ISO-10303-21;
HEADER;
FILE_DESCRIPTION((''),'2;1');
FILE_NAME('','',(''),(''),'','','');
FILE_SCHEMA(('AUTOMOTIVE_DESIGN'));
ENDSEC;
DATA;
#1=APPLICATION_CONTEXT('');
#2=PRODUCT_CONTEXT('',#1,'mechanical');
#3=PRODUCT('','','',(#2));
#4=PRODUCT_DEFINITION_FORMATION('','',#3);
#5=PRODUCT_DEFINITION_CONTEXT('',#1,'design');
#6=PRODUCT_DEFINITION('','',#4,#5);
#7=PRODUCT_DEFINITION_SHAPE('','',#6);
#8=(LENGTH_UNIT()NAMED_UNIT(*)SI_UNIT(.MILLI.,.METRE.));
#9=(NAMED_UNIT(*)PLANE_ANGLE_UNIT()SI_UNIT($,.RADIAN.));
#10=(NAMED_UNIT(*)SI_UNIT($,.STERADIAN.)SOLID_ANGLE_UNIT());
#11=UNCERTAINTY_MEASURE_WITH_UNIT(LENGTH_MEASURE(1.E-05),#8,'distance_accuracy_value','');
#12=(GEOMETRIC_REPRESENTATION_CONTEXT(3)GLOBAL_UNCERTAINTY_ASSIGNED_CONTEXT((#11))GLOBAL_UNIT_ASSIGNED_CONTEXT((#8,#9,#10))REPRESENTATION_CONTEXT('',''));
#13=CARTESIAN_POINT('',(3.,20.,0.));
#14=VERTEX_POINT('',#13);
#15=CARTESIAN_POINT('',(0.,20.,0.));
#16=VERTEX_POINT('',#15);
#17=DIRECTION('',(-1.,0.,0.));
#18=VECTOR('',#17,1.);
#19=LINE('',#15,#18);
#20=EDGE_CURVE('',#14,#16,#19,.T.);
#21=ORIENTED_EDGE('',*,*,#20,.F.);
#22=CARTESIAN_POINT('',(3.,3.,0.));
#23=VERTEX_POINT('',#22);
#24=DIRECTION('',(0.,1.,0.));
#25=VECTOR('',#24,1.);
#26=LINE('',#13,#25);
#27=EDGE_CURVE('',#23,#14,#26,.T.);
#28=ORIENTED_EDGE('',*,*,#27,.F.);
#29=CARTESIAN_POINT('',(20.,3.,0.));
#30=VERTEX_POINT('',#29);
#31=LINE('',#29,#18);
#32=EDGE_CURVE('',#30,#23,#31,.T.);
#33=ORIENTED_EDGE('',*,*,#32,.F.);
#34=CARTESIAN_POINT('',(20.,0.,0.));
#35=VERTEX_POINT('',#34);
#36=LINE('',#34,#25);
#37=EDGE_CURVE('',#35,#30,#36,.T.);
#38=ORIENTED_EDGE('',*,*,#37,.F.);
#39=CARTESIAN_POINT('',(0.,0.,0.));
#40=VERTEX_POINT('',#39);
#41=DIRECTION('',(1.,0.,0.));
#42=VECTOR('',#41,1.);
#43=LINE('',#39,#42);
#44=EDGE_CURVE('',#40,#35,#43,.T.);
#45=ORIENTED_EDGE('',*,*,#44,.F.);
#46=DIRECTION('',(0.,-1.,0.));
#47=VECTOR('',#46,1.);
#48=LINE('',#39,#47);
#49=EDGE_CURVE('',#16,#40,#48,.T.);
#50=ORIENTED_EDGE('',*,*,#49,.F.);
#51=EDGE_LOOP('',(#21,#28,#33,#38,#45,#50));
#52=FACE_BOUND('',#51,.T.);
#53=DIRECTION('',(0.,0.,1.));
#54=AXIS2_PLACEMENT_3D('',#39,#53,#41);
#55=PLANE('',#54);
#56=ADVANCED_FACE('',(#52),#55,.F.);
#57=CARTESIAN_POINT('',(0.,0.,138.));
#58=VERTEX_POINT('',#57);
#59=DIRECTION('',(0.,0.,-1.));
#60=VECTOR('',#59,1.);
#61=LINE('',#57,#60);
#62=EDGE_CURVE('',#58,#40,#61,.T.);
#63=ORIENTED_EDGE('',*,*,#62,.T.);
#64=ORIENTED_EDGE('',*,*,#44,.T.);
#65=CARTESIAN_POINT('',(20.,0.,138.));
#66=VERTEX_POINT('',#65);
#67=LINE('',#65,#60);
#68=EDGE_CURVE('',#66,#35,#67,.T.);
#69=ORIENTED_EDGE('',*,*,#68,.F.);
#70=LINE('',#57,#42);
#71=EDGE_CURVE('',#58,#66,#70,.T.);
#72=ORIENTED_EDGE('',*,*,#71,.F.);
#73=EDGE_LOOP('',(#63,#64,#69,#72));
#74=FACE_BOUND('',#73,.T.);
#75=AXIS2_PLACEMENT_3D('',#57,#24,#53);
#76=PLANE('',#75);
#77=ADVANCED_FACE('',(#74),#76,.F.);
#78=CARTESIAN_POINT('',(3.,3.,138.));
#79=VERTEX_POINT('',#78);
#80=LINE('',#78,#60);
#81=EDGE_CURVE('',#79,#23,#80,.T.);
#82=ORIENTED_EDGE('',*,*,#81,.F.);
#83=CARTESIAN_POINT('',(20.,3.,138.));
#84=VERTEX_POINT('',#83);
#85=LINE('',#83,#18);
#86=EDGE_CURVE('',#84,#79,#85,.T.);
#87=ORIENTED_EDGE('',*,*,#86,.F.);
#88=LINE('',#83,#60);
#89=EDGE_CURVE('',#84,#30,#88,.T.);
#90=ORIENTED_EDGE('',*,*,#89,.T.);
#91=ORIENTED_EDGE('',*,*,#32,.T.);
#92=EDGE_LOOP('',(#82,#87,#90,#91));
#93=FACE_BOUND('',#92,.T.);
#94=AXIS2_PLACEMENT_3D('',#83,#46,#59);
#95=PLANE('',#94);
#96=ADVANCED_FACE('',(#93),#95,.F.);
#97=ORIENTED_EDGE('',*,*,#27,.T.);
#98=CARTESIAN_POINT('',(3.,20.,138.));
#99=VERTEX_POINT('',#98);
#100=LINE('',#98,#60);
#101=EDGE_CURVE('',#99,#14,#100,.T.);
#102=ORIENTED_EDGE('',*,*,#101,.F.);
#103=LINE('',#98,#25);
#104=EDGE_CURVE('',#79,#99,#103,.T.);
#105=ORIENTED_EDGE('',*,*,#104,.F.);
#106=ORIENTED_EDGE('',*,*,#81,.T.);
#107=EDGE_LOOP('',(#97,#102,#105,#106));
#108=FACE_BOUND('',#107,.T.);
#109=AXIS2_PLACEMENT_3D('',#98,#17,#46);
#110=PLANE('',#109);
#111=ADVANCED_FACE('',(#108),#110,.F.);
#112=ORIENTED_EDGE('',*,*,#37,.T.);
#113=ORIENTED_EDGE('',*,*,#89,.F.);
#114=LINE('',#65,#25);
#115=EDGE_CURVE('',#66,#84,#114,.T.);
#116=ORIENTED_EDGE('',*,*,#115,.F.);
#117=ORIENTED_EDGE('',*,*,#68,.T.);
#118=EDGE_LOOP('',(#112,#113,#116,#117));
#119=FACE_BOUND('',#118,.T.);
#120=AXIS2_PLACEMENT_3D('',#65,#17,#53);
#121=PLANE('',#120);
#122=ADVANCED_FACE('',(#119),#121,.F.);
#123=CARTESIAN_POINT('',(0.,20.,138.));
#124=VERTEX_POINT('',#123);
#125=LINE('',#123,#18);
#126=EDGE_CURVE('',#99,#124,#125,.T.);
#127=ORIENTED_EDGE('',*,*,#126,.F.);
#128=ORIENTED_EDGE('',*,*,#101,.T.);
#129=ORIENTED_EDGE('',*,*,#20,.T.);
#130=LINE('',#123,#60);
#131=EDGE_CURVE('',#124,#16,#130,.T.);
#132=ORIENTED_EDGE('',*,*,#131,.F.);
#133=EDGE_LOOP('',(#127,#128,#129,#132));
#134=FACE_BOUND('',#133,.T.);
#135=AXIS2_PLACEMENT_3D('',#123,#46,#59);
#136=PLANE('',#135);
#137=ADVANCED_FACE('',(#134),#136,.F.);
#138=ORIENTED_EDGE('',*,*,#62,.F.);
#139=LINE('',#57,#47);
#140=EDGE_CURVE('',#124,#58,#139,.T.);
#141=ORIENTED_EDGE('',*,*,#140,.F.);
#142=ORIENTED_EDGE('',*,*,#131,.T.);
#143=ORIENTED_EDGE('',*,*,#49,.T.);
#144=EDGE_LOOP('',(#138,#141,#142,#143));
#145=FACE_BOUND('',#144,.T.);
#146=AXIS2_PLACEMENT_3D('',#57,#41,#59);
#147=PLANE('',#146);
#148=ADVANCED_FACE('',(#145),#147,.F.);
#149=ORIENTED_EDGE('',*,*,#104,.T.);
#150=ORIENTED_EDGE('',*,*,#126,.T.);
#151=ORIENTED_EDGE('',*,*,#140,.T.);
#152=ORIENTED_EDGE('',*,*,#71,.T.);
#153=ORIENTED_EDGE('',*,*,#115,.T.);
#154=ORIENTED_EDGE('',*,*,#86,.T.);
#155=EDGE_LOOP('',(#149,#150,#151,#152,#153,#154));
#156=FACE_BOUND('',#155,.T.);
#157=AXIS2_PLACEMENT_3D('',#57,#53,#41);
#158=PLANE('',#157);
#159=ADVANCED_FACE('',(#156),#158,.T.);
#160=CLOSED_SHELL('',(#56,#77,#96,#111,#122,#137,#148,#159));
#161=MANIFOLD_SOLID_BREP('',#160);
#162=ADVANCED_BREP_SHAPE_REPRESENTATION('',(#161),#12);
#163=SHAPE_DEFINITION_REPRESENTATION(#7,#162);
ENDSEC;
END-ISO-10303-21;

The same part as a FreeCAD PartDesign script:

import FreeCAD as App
import Part
import Sketcher
from FreeCAD import Vector
Q = App.Units.Quantity


def add_polygon(sketch, points):
    """Adds a closed chain of lines whose ends are joined by coincident constraints."""
    first, n = sketch.GeometryCount, len(points)
    for a, b in zip(points, points[1:] + points[:1]):
        sketch.addGeometry(Part.LineSegment(App.Vector(*a, 0), App.Vector(*b, 0)), False)
    for i in range(n):
        sketch.addConstraint(Sketcher.Constraint("Coincident", first + i, 2, first + (i + 1) % n, 1))

doc = App.newDocument("Part")
params = doc.addObject("Spreadsheet::Sheet", "Params")
for row, (alias, value) in enumerate([
    ("sketch1_width", "20 mm"),
    ("sketch1_width2", "17 mm"),
    ("pad1_length", "138 mm"),
], start=1):
    params.set(f"A{row}", alias)
    params.set(f"B{row}", "=" + value)
    params.setAlias(f"B{row}", alias)

body = doc.addObject("PartDesign::Body", "Body")

sketch1 = body.newObject("Sketcher::SketchObject", "Sketch")
sketch1.AttachmentSupport = (doc.getObject("XY_Plane"), [""])
sketch1.MapMode = "FlatFace"
add_polygon(sketch1, [(0, 0), (20, 0), (20, 3), (3, 3), (3, 20), (0, 20)])
sketch1.addConstraint(Sketcher.Constraint("Horizontal", 0))
sketch1.addConstraint(Sketcher.Constraint("Vertical", 1))
sketch1.addConstraint(Sketcher.Constraint("Horizontal", 2))
sketch1.addConstraint(Sketcher.Constraint("Vertical", 3))
sketch1.addConstraint(Sketcher.Constraint("Horizontal", 4))
sketch1.addConstraint(Sketcher.Constraint("Vertical", 5))
sketch1.addConstraint(Sketcher.Constraint("Coincident", 5, 2, -1, 1))
sketch1.addConstraint(Sketcher.Constraint("Equal", 4, 1))
sketch1.addConstraint(Sketcher.Constraint("Equal", 2, 3))
sketch1.addConstraint(Sketcher.Constraint("DistanceX", 0, 1, 0, 2, Q("20 mm")))
sketch1.addConstraint(Sketcher.Constraint("DistanceX", 2, 2, 2, 1, Q("17 mm")))
sketch1.setExpression("Constraints[15]", "Params.sketch1_width")
sketch1.setExpression("Constraints[16]", "Params.sketch1_width2")
pad1 = body.newObject("PartDesign::Pad", "Pad")
pad1.Profile = sketch1
pad1.setExpression("Length", "Params.pad1_length")

doc.recompute()
